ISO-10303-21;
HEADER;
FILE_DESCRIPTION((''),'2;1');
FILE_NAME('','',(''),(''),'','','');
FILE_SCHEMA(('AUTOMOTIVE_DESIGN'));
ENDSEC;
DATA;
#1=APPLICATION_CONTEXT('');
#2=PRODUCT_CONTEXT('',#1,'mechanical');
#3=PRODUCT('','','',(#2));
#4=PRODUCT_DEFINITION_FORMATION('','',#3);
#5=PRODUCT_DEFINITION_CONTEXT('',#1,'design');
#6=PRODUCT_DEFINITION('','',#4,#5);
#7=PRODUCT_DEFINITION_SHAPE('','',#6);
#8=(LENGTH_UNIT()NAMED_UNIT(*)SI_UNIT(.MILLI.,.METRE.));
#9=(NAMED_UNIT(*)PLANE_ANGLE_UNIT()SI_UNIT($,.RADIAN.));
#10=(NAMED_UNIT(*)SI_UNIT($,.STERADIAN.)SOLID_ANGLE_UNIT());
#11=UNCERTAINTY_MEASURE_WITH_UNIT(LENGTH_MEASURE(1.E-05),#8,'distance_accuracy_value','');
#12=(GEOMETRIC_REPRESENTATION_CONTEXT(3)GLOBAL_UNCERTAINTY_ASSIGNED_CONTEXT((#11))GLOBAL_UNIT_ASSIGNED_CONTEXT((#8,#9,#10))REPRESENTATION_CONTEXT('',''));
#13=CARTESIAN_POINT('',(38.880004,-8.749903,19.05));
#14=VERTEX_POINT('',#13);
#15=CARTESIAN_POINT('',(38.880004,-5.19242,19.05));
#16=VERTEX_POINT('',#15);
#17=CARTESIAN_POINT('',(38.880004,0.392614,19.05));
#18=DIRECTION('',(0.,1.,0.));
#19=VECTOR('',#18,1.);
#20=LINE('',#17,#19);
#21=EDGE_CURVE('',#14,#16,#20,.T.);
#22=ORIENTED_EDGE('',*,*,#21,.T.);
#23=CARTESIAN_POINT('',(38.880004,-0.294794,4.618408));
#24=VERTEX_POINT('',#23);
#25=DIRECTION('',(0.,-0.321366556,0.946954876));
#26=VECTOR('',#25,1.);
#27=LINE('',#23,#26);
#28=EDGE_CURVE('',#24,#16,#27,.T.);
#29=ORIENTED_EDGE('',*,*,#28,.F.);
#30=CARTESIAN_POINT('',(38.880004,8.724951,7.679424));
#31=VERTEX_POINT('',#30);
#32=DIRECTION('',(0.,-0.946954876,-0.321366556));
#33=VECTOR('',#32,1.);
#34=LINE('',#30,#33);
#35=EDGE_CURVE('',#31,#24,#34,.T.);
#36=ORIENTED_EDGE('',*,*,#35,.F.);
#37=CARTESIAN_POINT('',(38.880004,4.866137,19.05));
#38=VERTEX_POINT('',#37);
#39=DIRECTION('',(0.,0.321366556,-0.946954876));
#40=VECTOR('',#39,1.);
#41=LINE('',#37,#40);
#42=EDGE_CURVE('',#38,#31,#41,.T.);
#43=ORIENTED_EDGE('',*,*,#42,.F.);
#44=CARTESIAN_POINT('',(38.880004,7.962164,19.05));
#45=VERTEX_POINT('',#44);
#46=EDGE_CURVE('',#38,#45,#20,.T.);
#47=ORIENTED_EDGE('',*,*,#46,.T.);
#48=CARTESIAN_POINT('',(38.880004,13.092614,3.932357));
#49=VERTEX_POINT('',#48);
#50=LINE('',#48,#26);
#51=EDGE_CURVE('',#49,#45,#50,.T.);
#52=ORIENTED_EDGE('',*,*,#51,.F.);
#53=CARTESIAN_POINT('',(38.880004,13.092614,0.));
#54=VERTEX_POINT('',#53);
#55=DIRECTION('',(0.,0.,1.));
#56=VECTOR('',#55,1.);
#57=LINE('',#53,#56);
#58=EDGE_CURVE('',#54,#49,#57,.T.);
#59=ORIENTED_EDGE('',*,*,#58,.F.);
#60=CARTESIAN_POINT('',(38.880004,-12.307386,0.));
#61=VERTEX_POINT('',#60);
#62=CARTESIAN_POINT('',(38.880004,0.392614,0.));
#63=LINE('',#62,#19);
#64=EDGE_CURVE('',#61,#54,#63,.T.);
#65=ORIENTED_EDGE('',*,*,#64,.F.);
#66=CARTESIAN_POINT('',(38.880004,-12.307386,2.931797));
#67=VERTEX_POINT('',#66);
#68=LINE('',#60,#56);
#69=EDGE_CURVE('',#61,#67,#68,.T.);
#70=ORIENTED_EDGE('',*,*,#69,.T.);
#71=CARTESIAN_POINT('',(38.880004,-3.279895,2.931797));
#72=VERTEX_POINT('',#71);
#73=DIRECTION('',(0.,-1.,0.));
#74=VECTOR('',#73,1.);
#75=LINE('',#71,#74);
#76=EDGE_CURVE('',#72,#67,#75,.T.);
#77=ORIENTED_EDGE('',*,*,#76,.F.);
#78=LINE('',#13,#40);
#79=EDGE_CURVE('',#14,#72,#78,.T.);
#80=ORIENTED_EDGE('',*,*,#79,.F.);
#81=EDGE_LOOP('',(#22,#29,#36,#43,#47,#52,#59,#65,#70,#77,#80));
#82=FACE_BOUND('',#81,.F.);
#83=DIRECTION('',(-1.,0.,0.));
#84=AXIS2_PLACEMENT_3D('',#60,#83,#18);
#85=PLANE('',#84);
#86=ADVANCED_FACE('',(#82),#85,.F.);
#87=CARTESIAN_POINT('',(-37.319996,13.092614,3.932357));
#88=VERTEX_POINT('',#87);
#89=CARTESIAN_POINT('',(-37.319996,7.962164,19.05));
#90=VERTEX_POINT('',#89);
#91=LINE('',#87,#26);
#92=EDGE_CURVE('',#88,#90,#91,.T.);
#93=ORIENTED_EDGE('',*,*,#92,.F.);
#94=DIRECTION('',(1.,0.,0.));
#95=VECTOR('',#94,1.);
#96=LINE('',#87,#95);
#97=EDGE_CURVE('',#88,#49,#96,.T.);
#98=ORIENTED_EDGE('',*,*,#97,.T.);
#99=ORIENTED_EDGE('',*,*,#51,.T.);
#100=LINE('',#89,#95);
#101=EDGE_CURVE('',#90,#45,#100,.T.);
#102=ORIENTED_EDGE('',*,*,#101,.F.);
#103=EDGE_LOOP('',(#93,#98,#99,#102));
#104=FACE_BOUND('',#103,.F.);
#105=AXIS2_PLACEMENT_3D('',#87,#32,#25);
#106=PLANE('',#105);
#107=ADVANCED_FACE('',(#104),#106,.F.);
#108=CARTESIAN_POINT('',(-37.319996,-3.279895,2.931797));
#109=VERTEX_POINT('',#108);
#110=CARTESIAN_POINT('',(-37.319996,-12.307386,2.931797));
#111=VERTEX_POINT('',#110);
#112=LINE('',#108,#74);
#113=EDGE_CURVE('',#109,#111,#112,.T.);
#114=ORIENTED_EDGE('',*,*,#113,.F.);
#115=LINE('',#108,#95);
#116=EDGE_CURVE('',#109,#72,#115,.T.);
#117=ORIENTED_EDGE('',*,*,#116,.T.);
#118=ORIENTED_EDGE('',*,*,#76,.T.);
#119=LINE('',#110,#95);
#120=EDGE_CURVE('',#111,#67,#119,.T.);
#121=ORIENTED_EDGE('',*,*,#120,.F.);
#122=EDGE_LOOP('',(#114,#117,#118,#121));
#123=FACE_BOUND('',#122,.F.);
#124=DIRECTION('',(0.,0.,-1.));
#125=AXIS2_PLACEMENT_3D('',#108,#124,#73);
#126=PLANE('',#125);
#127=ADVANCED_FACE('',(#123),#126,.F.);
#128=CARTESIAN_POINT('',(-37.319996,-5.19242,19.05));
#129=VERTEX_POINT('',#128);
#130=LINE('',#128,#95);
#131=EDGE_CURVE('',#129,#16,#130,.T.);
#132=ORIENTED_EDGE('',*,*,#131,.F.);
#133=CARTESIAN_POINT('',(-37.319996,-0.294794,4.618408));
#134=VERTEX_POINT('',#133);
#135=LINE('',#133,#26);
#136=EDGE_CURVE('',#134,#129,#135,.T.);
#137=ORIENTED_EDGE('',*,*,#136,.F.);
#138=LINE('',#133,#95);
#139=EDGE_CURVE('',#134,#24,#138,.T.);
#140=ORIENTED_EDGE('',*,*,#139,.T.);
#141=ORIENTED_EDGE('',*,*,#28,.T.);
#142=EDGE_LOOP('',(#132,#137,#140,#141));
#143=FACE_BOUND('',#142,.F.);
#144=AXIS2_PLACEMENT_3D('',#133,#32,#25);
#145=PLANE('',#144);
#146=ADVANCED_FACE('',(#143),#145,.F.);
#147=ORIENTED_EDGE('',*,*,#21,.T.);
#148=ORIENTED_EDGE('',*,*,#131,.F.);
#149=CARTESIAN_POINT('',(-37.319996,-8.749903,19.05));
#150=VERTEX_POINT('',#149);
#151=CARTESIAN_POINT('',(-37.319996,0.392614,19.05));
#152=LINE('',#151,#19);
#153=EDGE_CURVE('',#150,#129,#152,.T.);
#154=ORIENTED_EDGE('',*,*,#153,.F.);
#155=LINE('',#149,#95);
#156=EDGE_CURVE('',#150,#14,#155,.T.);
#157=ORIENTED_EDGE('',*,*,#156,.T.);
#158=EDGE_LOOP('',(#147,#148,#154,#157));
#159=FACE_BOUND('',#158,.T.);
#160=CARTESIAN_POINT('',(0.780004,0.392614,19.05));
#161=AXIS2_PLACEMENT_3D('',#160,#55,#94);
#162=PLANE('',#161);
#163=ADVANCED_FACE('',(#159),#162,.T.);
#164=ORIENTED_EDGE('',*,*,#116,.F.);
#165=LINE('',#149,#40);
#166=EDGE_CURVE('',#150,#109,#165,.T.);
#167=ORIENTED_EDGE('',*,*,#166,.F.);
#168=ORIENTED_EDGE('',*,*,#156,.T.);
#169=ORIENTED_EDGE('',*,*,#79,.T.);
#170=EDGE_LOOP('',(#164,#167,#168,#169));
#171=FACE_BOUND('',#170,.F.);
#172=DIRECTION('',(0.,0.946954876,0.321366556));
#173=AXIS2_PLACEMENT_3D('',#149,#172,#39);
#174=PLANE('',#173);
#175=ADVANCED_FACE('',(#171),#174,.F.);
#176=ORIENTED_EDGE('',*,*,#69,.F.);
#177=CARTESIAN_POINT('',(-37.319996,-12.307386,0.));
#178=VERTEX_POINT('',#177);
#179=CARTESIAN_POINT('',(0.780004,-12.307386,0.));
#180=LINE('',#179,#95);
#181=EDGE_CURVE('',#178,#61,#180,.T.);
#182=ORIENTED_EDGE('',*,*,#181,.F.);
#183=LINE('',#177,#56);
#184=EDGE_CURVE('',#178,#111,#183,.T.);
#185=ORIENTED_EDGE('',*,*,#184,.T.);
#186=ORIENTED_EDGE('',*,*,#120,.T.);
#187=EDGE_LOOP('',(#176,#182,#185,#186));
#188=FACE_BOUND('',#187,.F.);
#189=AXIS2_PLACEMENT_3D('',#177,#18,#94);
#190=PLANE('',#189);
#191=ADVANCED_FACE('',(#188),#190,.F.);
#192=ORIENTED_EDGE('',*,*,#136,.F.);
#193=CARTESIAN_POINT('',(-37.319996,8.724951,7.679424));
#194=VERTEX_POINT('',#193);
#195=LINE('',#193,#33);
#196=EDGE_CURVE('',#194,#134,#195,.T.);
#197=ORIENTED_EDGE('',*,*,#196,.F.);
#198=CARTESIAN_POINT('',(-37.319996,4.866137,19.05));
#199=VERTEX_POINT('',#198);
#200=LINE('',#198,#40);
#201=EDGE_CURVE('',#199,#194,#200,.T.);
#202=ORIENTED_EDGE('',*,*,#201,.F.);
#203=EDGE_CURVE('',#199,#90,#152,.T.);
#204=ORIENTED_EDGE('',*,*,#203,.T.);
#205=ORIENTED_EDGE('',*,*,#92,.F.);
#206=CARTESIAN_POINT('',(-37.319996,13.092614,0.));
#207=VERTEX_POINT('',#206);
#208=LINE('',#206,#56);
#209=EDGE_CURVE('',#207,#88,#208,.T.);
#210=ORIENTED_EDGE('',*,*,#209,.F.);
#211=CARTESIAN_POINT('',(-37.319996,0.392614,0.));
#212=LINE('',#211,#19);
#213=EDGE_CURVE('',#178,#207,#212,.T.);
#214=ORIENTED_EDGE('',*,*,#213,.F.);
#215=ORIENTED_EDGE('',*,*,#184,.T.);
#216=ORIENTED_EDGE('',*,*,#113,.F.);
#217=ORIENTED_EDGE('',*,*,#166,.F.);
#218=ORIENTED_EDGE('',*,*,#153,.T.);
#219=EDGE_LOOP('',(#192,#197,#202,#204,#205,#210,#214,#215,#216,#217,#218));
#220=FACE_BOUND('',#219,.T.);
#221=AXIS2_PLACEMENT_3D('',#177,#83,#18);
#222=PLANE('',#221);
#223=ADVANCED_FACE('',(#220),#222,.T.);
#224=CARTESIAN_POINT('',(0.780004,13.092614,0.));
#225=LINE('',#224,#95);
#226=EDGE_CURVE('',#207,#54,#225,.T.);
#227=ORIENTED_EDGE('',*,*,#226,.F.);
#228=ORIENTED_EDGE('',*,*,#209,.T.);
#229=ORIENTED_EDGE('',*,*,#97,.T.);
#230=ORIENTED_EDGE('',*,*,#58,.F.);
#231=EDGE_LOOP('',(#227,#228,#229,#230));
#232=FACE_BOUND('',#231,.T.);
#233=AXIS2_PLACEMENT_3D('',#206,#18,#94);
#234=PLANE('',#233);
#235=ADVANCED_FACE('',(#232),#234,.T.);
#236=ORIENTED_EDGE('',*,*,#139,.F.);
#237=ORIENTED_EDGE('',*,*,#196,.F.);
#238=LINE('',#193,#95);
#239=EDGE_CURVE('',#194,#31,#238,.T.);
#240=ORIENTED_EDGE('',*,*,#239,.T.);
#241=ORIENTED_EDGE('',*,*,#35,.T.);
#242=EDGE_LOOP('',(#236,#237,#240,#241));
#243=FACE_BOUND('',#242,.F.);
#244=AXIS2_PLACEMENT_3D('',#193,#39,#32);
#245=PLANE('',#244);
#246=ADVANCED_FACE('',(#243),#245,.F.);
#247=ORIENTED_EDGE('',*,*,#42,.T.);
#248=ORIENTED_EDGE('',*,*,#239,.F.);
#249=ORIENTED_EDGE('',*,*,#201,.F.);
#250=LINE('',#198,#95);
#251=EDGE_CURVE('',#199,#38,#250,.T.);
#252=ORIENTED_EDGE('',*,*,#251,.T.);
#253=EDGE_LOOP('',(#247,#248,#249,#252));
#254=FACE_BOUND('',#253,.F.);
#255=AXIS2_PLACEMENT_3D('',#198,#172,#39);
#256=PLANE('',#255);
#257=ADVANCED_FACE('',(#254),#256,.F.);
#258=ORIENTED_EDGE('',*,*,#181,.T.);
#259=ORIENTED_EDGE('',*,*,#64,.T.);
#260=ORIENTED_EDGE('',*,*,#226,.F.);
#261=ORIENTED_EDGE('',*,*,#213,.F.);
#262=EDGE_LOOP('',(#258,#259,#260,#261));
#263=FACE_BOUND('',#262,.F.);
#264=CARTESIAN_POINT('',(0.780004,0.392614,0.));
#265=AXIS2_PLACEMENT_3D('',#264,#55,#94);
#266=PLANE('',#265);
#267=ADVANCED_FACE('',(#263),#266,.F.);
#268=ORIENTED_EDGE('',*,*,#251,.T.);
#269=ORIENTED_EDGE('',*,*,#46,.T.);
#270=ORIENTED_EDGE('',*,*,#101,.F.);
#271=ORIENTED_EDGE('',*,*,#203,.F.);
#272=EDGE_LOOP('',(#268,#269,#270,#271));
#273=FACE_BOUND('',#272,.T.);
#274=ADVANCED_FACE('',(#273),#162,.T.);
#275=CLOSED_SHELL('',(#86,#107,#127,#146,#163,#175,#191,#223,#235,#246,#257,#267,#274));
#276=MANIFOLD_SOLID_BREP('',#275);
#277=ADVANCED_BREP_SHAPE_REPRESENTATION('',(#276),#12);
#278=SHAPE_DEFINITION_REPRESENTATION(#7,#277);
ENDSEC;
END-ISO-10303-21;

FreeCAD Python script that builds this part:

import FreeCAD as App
import Part
import Sketcher

V = App.Vector
Q = App.Units.Quantity

doc = App.newDocument("Part")
body = doc.addObject("PartDesign::Body", "Body")

# Sketch on XY plane
sketch1 = doc.addObject("Sketcher::SketchObject", "Sketch")
body.addObject(sketch1)
sketch1.AttachmentSupport = (doc.XY_Plane, [""])
sketch1.MapMode = "FlatFace"
sketch1.addGeometry(Part.LineSegment(V(-37, 13, 0), V(-37, -12, 0)), False)
sketch1.addGeometry(Part.LineSegment(V(-37, -12, 0), V(39, -12, 0)), False)
sketch1.addGeometry(Part.LineSegment(V(39, -12, 0), V(39, 13, 0)), False)
sketch1.addGeometry(Part.LineSegment(V(39, 13, 0), V(-37, 13, 0)), False)
sketch1.addConstraint(Sketcher.Constraint("Coincident", 0, 2, 1, 1))
sketch1.addConstraint(Sketcher.Constraint("Coincident", 1, 2, 2, 1))
sketch1.addConstraint(Sketcher.Constraint("Coincident", 2, 2, 3, 1))
sketch1.addConstraint(Sketcher.Constraint("Coincident", 3, 2, 0, 1))
sketch1.addConstraint(Sketcher.Constraint("Vertical", 0))
sketch1.addConstraint(Sketcher.Constraint("Horizontal", 1))
sketch1.addConstraint(Sketcher.Constraint("Vertical", 2))
sketch1.addConstraint(Sketcher.Constraint("Horizontal", 3))
sketch1.addConstraint(Sketcher.Constraint("DistanceX", 1, 1, 1, 2, Q("3 in")))
sketch1.addConstraint(Sketcher.Constraint("DistanceY", 0, 2, 0, 1, Q("1 in")))
sketch1.addConstraint(Sketcher.Constraint("DistanceX", 0, 2, -1, 1, Q("37.319996 mm")))
sketch1.addConstraint(Sketcher.Constraint("DistanceY", 0, 2, -1, 1, Q("12.307386 mm")))
pad1 = doc.addObject("PartDesign::Pad", "Pad")
body.addObject(pad1)
pad1.Profile = sketch1
pad1.Length = Q("0.75 in")

# Sketch on YZ plane
sketch2 = doc.addObject("Sketcher::SketchObject", "Sketch001")
body.addObject(sketch2)
sketch2.AttachmentSupport = (doc.YZ_Plane, [""])
sketch2.MapMode = "FlatFace"
sketch2.AttachmentOffset = App.Placement(V(0, 0, -37.319996), App.Rotation())
sketch2.addGeometry(Part.LineSegment(V(-5, 19, 0), V(5, 19, 0)), False)
sketch2.addGeometry(Part.LineSegment(V(5, 19, 0), V(9, 8, 0)), False)
sketch2.addGeometry(Part.LineSegment(V(9, 8, 0), V(0, 5, 0)), False)
sketch2.addGeometry(Part.LineSegment(V(0, 5, 0), V(-5, 19, 0)), False)
sketch2.addConstraint(Sketcher.Constraint("Coincident", 0, 2, 1, 1))
sketch2.addConstraint(Sketcher.Constraint("Coincident", 1, 2, 2, 1))
sketch2.addConstraint(Sketcher.Constraint("Coincident", 2, 2, 3, 1))
sketch2.addConstraint(Sketcher.Constraint("Coincident", 3, 2, 0, 1))
sketch2.addConstraint(Sketcher.Constraint("Horizontal", 0))
sketch2.addConstraint(Sketcher.Constraint("Perpendicular", 1, 2))
sketch2.addConstraint(Sketcher.Constraint("Perpendicular", 2, 3))
sketch2.addConstraint(Sketcher.Constraint("Distance", 3, Q("0.6 in")))
sketch2.addConstraint(Sketcher.Constraint("DistanceY", -1, 1, 0, 2, Q("0.75 in")))
sketch2.addConstraint(Sketcher.Constraint("Distance", 2, Q("0.375 in")))
sketch2.addConstraint(Sketcher.Constraint("DistanceX", 0, 1, 0, 2, Q("10.058557 mm")))
sketch2.addConstraint(Sketcher.Constraint("DistanceX", -1, 1, 1, 2, Q("8.724951 mm")))
pocket1 = doc.addObject("PartDesign::Pocket", "Pocket")
body.addObject(pocket1)
pocket1.Profile = sketch2
pocket1.Length = Q("3 in")
pocket1.Reversed = True

# Sketch on YZ plane
sketch3 = doc.addObject("Sketcher::SketchObject", "Sketch002")
body.addObject(sketch3)
sketch3.AttachmentSupport = (doc.YZ_Plane, [""])
sketch3.MapMode = "FlatFace"
sketch3.AttachmentOffset = App.Placement(V(0, 0, -37.319996), App.Rotation())
sketch3.addGeometry(Part.LineSegment(V(13, 4, 0), V(8, 19, 0)), False)
sketch3.addGeometry(Part.LineSegment(V(8, 19, 0), V(13, 19, 0)), False)
sketch3.addGeometry(Part.LineSegment(V(13, 19, 0), V(13, 4, 0)), False)
sketch3.addConstraint(Sketcher.Constraint("Coincident", 0, 2, 1, 1))
sketch3.addConstraint(Sketcher.Constraint("Coincident", 1, 2, 2, 1))
sketch3.addConstraint(Sketcher.Constraint("Coincident", 2, 2, 0, 1))
sketch3.addConstraint(Sketcher.Constraint("Horizontal", 1))
sketch3.addConstraint(Sketcher.Constraint("Vertical", 2))
sketch3.addConstraint(Sketcher.Constraint("DistanceY", -1, 1, 0, 2, Q("0.75 in")))
sketch3.addConstraint(Sketcher.Constraint("DistanceX", 1, 1, 1, 2, Q("5.13045 mm")))
sketch3.addConstraint(Sketcher.Constraint("Distance", 0, Q("15.964481 mm")))
sketch3.addConstraint(Sketcher.Constraint("DistanceX", -1, 1, 0, 2, Q("7.962164 mm")))
pocket2 = doc.addObject("PartDesign::Pocket", "Pocket001")
body.addObject(pocket2)
pocket2.Profile = sketch3
pocket2.Length = Q("3 in")
pocket2.Reversed = True

# Sketch on YZ plane
sketch4 = doc.addObject("Sketcher::SketchObject", "Sketch003")
body.addObject(sketch4)
sketch4.AttachmentSupport = (doc.YZ_Plane, [""])
sketch4.MapMode = "FlatFace"
sketch4.AttachmentOffset = App.Placement(V(0, 0, -37.319996), App.Rotation())
sketch4.addGeometry(Part.LineSegment(V(-12.3, 19.1, 0), V(-8.7, 19.1, 0)), False)
sketch4.addGeometry(Part.LineSegment(V(-8.7, 19.1, 0), V(-3.3, 2.9, 0)), False)
sketch4.addGeometry(Part.LineSegment(V(-3.3, 2.9, 0), V(-12.3, 2.9, 0)), False)
sketch4.addGeometry(Part.LineSegment(V(-12.3, 2.9, 0), V(-12.3, 19.1, 0)), False)
sketch4.addConstraint(Sketcher.Constraint("Coincident", 0, 2, 1, 1))
sketch4.addConstraint(Sketcher.Constraint("Coincident", 1, 2, 2, 1))
sketch4.addConstraint(Sketcher.Constraint("Coincident", 2, 2, 3, 1))
sketch4.addConstraint(Sketcher.Constraint("Coincident", 3, 2, 0, 1))
sketch4.addConstraint(Sketcher.Constraint("Horizontal", 0))
sketch4.addConstraint(Sketcher.Constraint("Horizontal", 2))
sketch4.addConstraint(Sketcher.Constraint("Vertical", 3))
sketch4.addConstraint(Sketcher.Constraint("DistanceY", -1, 1, 0, 2, Q("0.75 in")))
sketch4.addConstraint(Sketcher.Constraint("DistanceX", 2, 2, 2, 1, Q("9.027492 mm")))
sketch4.addConstraint(Sketcher.Constraint("Distance", 1, Q("17.021088 mm")))
sketch4.addConstraint(Sketcher.Constraint("DistanceX", 0, 1, 0, 2, Q("3.557483 mm")))
sketch4.addConstraint(Sketcher.Constraint("DistanceX", 0, 2, -1, 1, Q("8.749903 mm")))
pocket3 = doc.addObject("PartDesign::Pocket", "Pocket002")
body.addObject(pocket3)
pocket3.Profile = sketch4
pocket3.Length = Q("3 in")
pocket3.Reversed = True

doc.recompute()
